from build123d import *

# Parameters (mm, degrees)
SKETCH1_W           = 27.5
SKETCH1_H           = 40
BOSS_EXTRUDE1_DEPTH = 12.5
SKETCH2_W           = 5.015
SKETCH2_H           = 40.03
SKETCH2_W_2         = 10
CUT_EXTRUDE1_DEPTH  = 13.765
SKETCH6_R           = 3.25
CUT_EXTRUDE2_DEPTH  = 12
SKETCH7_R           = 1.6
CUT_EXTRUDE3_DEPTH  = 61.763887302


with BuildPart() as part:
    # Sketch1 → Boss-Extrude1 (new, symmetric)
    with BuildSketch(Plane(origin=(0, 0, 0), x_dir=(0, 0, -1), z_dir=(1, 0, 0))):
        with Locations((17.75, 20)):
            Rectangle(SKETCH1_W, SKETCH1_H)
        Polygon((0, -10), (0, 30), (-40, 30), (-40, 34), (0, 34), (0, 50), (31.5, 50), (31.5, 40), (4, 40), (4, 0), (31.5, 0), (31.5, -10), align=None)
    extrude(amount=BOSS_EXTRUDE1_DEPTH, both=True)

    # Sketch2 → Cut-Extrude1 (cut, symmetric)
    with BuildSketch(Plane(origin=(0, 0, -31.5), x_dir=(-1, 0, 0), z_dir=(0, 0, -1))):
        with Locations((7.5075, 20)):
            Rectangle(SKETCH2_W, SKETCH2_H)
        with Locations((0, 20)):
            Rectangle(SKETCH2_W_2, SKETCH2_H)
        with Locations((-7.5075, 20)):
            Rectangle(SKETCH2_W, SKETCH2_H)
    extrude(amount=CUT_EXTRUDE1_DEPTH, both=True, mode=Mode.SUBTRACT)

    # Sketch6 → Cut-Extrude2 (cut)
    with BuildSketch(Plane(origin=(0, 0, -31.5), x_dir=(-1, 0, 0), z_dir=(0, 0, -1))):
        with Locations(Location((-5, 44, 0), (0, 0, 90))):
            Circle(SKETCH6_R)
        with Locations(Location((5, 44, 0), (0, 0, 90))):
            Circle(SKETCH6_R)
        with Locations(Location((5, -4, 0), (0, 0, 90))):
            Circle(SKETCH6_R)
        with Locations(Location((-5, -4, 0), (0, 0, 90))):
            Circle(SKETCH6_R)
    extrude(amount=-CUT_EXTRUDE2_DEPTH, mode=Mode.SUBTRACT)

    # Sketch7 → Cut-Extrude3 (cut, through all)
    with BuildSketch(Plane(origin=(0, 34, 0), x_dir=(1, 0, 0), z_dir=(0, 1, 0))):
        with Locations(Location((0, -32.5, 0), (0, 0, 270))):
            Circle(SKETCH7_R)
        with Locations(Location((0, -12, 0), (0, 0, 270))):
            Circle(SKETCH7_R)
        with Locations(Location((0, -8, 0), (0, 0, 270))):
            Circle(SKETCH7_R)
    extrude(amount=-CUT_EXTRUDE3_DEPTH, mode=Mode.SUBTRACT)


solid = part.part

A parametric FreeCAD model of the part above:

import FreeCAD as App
import Part
import Sketcher
from FreeCAD import Vector
Q = App.Units.Quantity

doc = App.newDocument("Part")
body = doc.addObject("PartDesign::Body", "Body")

# Sketch on YZ plane
sketch1 = body.newObject("Sketcher::SketchObject", "Sketch")
sketch1.AttachmentSupport = (doc.getObject("YZ_Plane"), [""])
sketch1.MapMode = "FlatFace"
sketch1.addGeometry([
    Part.LineSegment(Vector(50, -31.5, 0), Vector(50, 0, 0)),  # 0
    Part.LineSegment(Vector(50, 0, 0), Vector(34, 0, 0)),  # 1
    Part.LineSegment(Vector(34, 0, 0), Vector(34, 40, 0)),  # 2
    Part.LineSegment(Vector(34, 40, 0), Vector(30, 40, 0)),  # 3
    Part.LineSegment(Vector(30, 40, 0), Vector(30, 0, 0)),  # 4
    Part.LineSegment(Vector(30, 0, 0), Vector(-10, 0, 0)),  # 5
    Part.LineSegment(Vector(-10, 0, 0), Vector(-10, -31.5, 0)),  # 6
    Part.LineSegment(Vector(-10, -31.5, 0), Vector(50, -31.5, 0)),  # 7
], False)
sketch1.addConstraint([
    Sketcher.Constraint("Coincident", 0, 2, 1, 1),
    Sketcher.Constraint("Coincident", 1, 2, 2, 1),
    Sketcher.Constraint("Coincident", 2, 2, 3, 1),
    Sketcher.Constraint("Coincident", 3, 2, 4, 1),
    Sketcher.Constraint("Coincident", 4, 2, 5, 1),
    Sketcher.Constraint("Coincident", 5, 2, 6, 1),
    Sketcher.Constraint("Coincident", 6, 2, 7, 1),
    Sketcher.Constraint("Coincident", 7, 2, 0, 1),
    Sketcher.Constraint("Vertical", 0),
    Sketcher.Constraint("Horizontal", 1),
    Sketcher.Constraint("Vertical", 2),
    Sketcher.Constraint("Horizontal", 3),
    Sketcher.Constraint("Vertical", 4),
    Sketcher.Constraint("Horizontal", 5),
    Sketcher.Constraint("Vertical", 6),
    Sketcher.Constraint("Horizontal", 7),
    Sketcher.Constraint("PointOnObject", 0, 2, -1),
    Sketcher.Constraint("PointOnObject", 4, 2, -1),
    Sketcher.Constraint("Equal", 5, 2),
    Sketcher.Constraint("DistanceX", 1, 2, 1, 1, Q("16 mm")),
    Sketcher.Constraint("DistanceX", 3, 2, 3, 1, Q("4 mm")),
    Sketcher.Constraint("DistanceX", 5, 2, 5, 1, Q("40 mm")),
    Sketcher.Constraint("DistanceY", 0, 1, 0, 2, Q("31.5 mm")),
    Sketcher.Constraint("DistanceX", -1, 1, 0, 2, Q("50 mm")),
])
pad1 = body.newObject("PartDesign::Pad", "Pad")
pad1.Profile = sketch1
pad1.Length = 25
pad1.Midplane = True

# Sketch on XY plane
sketch2 = body.newObject("Sketcher::SketchObject", "Sketch001")
sketch2.AttachmentSupport = (doc.getObject("XY_Plane"), [""])
sketch2.MapMode = "FlatFace"
sketch2.AttachmentOffset = App.Placement(Vector(0, 0, -31.5), App.Rotation())
sketch2.addGeometry([
    Part.LineSegment(Vector(-10, 0, 0), Vector(-10, 40, 0)),
    Part.LineSegment(Vector(-10, 40, 0), Vector(10, 40, 0)),
    Part.LineSegment(Vector(10, 40, 0), Vector(10, 0, 0)),
    Part.LineSegment(Vector(10, 0, 0), Vector(-10, 0, 0)),
], False)
sketch2.addConstraint([
    Sketcher.Constraint("Coincident", 0, 2, 1, 1),
    Sketcher.Constraint("Coincident", 1, 2, 2, 1),
    Sketcher.Constraint("Coincident", 2, 2, 3, 1),
    Sketcher.Constraint("Coincident", 3, 2, 0, 1),
    Sketcher.Constraint("Vertical", 0),
    Sketcher.Constraint("Horizontal", 1),
    Sketcher.Constraint("Vertical", 2),
    Sketcher.Constraint("Horizontal", 3),
    Sketcher.Constraint("DistanceX", 1, 1, 1, 2, Q("20.03 mm")),
    Sketcher.Constraint("DistanceY", 0, 1, 0, 2, Q("40.03 mm")),
    Sketcher.Constraint("DistanceX", 0, 2, -1, 1, Q("10.015 mm")),
    Sketcher.Constraint("DistanceY", -1, 1, 0, 2, Q("40.015 mm")),
])
pocket1 = body.newObject("PartDesign::Pocket", "Pocket")
pocket1.Profile = sketch2
pocket1.Length = 27.53
pocket1.Midplane = True

# Sketch on XY plane
sketch3 = body.newObject("Sketcher::SketchObject", "Sketch002")
sketch3.AttachmentSupport = (doc.getObject("XY_Plane"), [""])
sketch3.MapMode = "FlatFace"
sketch3.AttachmentOffset = App.Placement(Vector(0, 0, -31.5), App.Rotation())
sketch3.addGeometry([
    Part.Circle(Vector(5, 44, 0), Vector(0, 0, 1), 3.2),
    Part.Circle(Vector(-5, 44, 0), Vector(0, 0, 1), 3.2),
    Part.Circle(Vector(-5, -4, 0), Vector(0, 0, 1), 3.2),
    Part.Circle(Vector(5, -4, 0), Vector(0, 0, 1), 3.2),
], False)
sketch3.addConstraint([
    Sketcher.Constraint("Equal", 0, 1),
    Sketcher.Constraint("Equal", 1, 2),
    Sketcher.Constraint("Equal", 2, 3),
    Sketcher.Constraint("Symmetric", 0, 3, 1, 3, -2),
    Sketcher.Constraint("Symmetric", 2, 3, 3, 3, -2),
    Sketcher.Constraint("Vertical", 1, 3, 2, 3),
    Sketcher.Constraint("Diameter", 0, Q("6.5 mm")),
    Sketcher.Constraint("DistanceX", -1, 1, 0, 3, Q("5 mm")),
    Sketcher.Constraint("DistanceY", -1, 1, 0, 3, Q("44 mm")),
    Sketcher.Constraint("DistanceY", 2, 3, -1, 1, Q("4 mm")),
])
pocket2 = body.newObject("PartDesign::Pocket", "Pocket001")
pocket2.Profile = sketch3
pocket2.Length = 12
pocket2.Reversed = True

# Sketch on XZ plane
sketch4 = body.newObject("Sketcher::SketchObject", "Sketch003")
sketch4.AttachmentSupport = (doc.getObject("XZ_Plane"), [""])
sketch4.MapMode = "FlatFace"
sketch4.AttachmentOffset = App.Placement(Vector(0, 0, -34), App.Rotation())
sketch4.addGeometry([
    Part.Circle(Vector(0, 32.5, 0), Vector(0, 0, 1), 1.6),
    Part.Circle(Vector(0, 12, 0), Vector(0, 0, 1), 1.6),
    Part.Circle(Vector(0, 8, 0), Vector(0, 0, 1), 1.6),
], False)
sketch4.addConstraint([
    Sketcher.Constraint("Equal", 0, 1),
    Sketcher.Constraint("Equal", 1, 2),
    Sketcher.Constraint("PointOnObject", 0, 3, -2),
    Sketcher.Constraint("PointOnObject", 1, 3, -2),
    Sketcher.Constraint("PointOnObject", 2, 3, -2),
    Sketcher.Constraint("Diameter", 0, Q("3.2 mm")),
    Sketcher.Constraint("DistanceY", -1, 1, 1, 3, Q("12 mm")),
    Sketcher.Constraint("DistanceY", -1, 1, 2, 3, Q("8 mm")),
    Sketcher.Constraint("DistanceY", -1, 1, 0, 3, Q("32.5 mm")),
])
pocket3 = body.newObject("PartDesign::Pocket", "Pocket002")
pocket3.Profile = sketch4
pocket3.Type = "ThroughAll"
pocket3.Reversed = True

doc.recompute()
